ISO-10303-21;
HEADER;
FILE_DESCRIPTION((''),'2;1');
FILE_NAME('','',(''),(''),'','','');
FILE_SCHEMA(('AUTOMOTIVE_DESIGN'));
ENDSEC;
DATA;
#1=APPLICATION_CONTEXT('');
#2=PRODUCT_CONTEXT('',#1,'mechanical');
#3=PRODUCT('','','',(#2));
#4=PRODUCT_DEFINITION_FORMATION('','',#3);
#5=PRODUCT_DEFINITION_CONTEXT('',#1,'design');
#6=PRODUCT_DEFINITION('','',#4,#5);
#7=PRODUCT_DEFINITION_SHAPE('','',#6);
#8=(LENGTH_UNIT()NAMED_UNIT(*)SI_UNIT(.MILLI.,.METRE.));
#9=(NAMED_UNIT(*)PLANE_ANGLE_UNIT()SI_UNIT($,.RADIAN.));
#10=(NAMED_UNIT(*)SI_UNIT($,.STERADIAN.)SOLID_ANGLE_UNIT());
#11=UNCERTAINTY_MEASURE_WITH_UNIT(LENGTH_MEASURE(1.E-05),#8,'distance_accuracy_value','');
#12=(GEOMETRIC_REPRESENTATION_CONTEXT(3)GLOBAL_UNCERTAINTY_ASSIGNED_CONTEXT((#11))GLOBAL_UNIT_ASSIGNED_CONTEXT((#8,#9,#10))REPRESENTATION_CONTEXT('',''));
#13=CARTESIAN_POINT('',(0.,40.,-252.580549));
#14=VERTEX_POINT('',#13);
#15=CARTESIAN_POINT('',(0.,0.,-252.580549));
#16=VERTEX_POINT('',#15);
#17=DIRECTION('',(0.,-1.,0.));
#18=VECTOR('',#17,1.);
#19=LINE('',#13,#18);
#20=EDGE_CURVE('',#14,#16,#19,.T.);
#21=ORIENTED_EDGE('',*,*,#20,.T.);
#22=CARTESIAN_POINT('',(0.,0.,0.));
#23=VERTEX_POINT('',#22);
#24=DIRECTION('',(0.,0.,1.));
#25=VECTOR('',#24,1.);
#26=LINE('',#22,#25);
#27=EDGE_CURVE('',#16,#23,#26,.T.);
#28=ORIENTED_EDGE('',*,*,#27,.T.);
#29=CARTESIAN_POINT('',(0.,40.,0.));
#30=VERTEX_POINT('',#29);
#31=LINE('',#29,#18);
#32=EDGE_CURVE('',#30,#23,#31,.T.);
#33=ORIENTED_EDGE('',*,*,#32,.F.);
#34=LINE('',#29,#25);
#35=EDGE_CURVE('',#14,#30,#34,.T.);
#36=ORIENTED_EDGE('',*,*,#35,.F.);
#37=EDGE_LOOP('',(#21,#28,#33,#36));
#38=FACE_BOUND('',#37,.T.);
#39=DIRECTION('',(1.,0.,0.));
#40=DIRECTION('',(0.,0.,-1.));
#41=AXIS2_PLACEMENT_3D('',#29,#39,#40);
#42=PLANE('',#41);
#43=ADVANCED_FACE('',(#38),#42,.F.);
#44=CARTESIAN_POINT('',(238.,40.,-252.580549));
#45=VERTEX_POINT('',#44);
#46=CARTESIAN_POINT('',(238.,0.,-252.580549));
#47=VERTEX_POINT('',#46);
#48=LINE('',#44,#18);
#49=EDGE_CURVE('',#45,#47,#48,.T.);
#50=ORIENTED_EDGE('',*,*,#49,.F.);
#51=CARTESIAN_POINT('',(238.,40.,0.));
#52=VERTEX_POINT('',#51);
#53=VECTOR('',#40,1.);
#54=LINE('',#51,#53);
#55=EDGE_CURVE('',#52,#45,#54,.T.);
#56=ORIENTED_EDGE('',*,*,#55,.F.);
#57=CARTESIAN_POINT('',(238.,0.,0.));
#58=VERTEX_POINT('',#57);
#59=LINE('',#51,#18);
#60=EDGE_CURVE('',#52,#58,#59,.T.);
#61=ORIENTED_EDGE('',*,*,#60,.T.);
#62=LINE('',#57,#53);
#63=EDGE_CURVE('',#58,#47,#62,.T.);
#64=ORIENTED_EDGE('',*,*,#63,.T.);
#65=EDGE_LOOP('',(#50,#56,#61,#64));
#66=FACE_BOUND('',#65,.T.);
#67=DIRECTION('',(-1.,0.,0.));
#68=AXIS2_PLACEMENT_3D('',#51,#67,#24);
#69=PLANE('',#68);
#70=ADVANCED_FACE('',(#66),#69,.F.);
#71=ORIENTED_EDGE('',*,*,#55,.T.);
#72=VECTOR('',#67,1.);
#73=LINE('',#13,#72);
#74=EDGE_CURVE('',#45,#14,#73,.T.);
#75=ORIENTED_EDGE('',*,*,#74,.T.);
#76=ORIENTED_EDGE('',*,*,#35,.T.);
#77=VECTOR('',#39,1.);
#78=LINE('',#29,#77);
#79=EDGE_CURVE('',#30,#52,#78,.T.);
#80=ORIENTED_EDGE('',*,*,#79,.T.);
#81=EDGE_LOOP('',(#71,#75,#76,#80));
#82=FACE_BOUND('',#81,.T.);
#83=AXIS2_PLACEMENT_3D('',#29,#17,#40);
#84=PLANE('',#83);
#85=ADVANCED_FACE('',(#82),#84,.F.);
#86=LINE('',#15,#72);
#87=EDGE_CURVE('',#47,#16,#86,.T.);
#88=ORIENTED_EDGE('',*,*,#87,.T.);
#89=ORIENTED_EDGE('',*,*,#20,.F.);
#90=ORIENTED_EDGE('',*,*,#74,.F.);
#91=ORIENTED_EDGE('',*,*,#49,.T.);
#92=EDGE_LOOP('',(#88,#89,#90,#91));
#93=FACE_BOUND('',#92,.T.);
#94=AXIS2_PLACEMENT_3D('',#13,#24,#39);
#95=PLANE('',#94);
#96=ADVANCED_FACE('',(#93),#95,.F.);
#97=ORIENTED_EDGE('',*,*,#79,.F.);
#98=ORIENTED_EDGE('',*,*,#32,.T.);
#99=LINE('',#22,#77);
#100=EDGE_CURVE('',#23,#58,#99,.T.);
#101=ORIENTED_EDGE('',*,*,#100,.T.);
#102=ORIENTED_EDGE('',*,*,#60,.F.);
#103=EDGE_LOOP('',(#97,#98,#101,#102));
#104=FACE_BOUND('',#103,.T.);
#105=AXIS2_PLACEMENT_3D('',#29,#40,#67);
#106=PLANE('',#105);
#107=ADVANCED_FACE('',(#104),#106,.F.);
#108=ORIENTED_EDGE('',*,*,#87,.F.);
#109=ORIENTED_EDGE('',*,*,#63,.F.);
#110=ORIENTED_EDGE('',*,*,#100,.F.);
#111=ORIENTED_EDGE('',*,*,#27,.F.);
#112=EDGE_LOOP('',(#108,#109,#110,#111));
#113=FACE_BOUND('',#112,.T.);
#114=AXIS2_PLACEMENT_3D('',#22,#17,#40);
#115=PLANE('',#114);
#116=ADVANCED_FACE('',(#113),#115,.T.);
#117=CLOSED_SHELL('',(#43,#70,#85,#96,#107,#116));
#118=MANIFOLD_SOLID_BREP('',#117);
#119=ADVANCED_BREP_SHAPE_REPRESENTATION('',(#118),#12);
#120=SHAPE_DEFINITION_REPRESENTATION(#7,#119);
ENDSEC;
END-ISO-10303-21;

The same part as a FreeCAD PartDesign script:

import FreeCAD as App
import Part
import Sketcher
from FreeCAD import Vector
Q = App.Units.Quantity

doc = App.newDocument("Part")
body = doc.addObject("PartDesign::Body", "Body")

sketch1 = body.newObject("Sketcher::SketchObject", "Sketch")
sketch1.AttachmentSupport = (doc.getObject("XZ_Plane"), [""])
sketch1.MapMode = "FlatFace"
sketch1.addGeometry([
    Part.LineSegment(Vector(0, -252.580549, 0), Vector(0, 0, 0)),
    Part.LineSegment(Vector(0, 0, 0), Vector(238, 0, 0)),
    Part.LineSegment(Vector(238, 0, 0), Vector(238, -252.580549, 0)),
    Part.LineSegment(Vector(238, -252.580549, 0), Vector(0, -252.580549, 0)),
], False)
sketch1.addConstraint([
    Sketcher.Constraint("Coincident", 0, 2, 1, 1),
    Sketcher.Constraint("Coincident", 1, 2, 2, 1),
    Sketcher.Constraint("Coincident", 2, 2, 3, 1),
    Sketcher.Constraint("Coincident", 3, 2, 0, 1),
    Sketcher.Constraint("Vertical", 0),
    Sketcher.Constraint("Horizontal", 1),
    Sketcher.Constraint("Vertical", 2),
    Sketcher.Constraint("Horizontal", 3),
    Sketcher.Constraint("Coincident", 0, 2, -1, 1),
    Sketcher.Constraint("DistanceX", 1, 1, 1, 2, Q("238 mm")),
    Sketcher.Constraint("DistanceY", 0, 1, 0, 2, Q("252.580549 mm")),
])
pad1 = body.newObject("PartDesign::Pad", "Pad")
pad1.Profile = sketch1
pad1.Length = 40
pad1.Reversed = True

doc.recompute()
